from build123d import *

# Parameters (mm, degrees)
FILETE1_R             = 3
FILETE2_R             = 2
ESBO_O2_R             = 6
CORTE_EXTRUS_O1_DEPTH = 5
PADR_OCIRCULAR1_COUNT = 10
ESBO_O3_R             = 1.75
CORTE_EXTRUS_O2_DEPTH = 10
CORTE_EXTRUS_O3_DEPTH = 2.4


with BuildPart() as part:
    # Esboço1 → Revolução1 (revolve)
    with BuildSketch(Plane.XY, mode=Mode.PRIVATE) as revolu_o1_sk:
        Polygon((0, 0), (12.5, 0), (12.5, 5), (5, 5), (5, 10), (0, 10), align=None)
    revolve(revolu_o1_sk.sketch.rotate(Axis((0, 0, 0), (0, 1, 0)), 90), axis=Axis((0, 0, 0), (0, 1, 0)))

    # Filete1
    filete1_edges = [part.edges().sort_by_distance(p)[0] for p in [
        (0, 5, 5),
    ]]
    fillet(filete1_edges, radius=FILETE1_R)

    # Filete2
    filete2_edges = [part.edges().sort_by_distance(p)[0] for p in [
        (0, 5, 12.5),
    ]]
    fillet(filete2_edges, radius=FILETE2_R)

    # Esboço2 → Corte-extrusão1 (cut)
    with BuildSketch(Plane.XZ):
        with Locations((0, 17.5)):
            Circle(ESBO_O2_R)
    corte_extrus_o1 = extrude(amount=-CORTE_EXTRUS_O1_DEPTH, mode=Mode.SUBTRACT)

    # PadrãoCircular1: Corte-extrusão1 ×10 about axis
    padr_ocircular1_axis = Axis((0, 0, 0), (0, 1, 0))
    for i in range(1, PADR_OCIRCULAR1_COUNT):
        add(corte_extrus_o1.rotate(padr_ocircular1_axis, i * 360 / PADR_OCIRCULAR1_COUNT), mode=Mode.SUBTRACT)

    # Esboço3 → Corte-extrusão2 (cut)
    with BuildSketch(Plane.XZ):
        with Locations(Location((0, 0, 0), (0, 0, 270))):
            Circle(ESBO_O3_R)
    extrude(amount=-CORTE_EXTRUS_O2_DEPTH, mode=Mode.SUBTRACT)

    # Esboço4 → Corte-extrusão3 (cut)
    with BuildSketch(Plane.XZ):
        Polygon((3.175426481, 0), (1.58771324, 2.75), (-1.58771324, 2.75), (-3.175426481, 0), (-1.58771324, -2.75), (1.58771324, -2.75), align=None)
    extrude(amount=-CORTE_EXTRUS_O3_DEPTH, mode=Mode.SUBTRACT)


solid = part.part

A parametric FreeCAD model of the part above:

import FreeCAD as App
import Part
import Sketcher
Q = App.Units.Quantity


def edges_at(feature, points):
    """Names of the edges that pass closest to the given points."""
    edges = feature.Shape.Edges
    near = lambda p: min(range(len(edges)), key=lambda i: edges[i].distToShape(Part.Vertex(*p))[0])
    return sorted({f"Edge{near(p) + 1}" for p in points})


def add_polygon(sketch, points):
    """Adds a closed chain of lines whose ends are joined by coincident constraints."""
    first, n = sketch.GeometryCount, len(points)
    for a, b in zip(points, points[1:] + points[:1]):
        sketch.addGeometry(Part.LineSegment(App.Vector(*a, 0), App.Vector(*b, 0)), False)
    for i in range(n):
        sketch.addConstraint(Sketcher.Constraint("Coincident", first + i, 2, first + (i + 1) % n, 1))

doc = App.newDocument("Part")
params = doc.addObject("Spreadsheet::Sheet", "Params")
for row, (alias, value) in enumerate([
    ("sketch1_width", "5 mm"),
    ("sketch1_width2", "12.5 mm"),
    ("revolution_angle", "360 deg"),
    ("fillet_radius", "3 mm"),
    ("fillet2_radius", "2 mm"),
    ("sketch2_diameter", "12 mm"),
    ("pocket1_length", "5 mm"),
    ("sketch3_diameter", "3.5 mm"),
    ("pocket2_length", "10 mm"),
    ("pocket3_length", "2.4 mm"),
], start=1):
    params.set(f"A{row}", alias)
    params.set(f"B{row}", "=" + value)
    params.setAlias(f"B{row}", alias)

body = doc.addObject("PartDesign::Body", "Body")

# Sketch on XY plane
sketch1 = doc.addObject("Sketcher::SketchObject", "Sketch")
body.addObject(sketch1)
sketch1.AttachmentSupport = (doc.XY_Plane, [""])
sketch1.MapMode = "FlatFace"
add_polygon(sketch1, [(0, 0), (12, 0), (12, 5), (5, 5), (5, 10), (0, 10)])  # lines 0-5
sketch1.addConstraint([
    Sketcher.Constraint("Horizontal", 0),
    Sketcher.Constraint("Vertical", 1),
    Sketcher.Constraint("Horizontal", 2),
    Sketcher.Constraint("Vertical", 3),
    Sketcher.Constraint("Horizontal", 4),
    Sketcher.Constraint("Vertical", 5),
    Sketcher.Constraint("Coincident", 5, 2, -1, 1),
    Sketcher.Constraint("Equal", 4, 1),
    Sketcher.Constraint("Equal", 1, 3),
    Sketcher.Constraint("DistanceX", 4, 2, 4, 1, 5.0),
    Sketcher.Constraint("DistanceX", 0, 1, 0, 2, 12.5),
])
sketch1.setExpression("Constraints[15]", "Params.sketch1_width")
sketch1.setExpression("Constraints[16]", "Params.sketch1_width2")
revolution = doc.addObject("PartDesign::Revolution", "Revolution")
body.addObject(revolution)
revolution.Profile = sketch1
revolution.ReferenceAxis = (sketch1, ["V_Axis"])
revolution.setExpression("Angle", "Params.revolution_angle")
doc.recompute()

fillet = doc.addObject("PartDesign::Fillet", "Fillet")
body.addObject(fillet)
fillet.Base = (revolution, edges_at(revolution, [(0, 5, 5)]))
fillet.setExpression("Radius", "Params.fillet_radius")
doc.recompute()

fillet2 = doc.addObject("PartDesign::Fillet", "Fillet001")
body.addObject(fillet2)
fillet2.Base = (fillet, edges_at(fillet, [(0, 5, 12.5)]))
fillet2.setExpression("Radius", "Params.fillet2_radius")

# Sketch on XZ plane
sketch2 = doc.addObject("Sketcher::SketchObject", "Sketch001")
body.addObject(sketch2)
sketch2.AttachmentSupport = (doc.XZ_Plane, [""])
sketch2.MapMode = "FlatFace"
sketch2.addGeometry(Part.Circle(App.Vector(0, 18, 0), App.Vector(0, 0, 1), 6), False)
sketch2.addConstraint([
    Sketcher.Constraint("PointOnObject", 0, 3, -2),
    Sketcher.Constraint("Diameter", 0, 12.0),
    Sketcher.Constraint("DistanceY", -1, 1, 0, 3, 17.5),
])
sketch2.setExpression("Constraints[1]", "Params.sketch2_diameter")
pocket1 = doc.addObject("PartDesign::Pocket", "Pocket")
body.addObject(pocket1)
pocket1.Profile = sketch2
pocket1.setExpression("Length", "Params.pocket1_length")
doc.recompute()

polarpattern = doc.addObject("PartDesign::PolarPattern", "PolarPattern")
body.addObject(polarpattern)
polarpattern.Originals = [pocket1]
polarpattern.Axis = (doc.Y_Axis, [""])
polarpattern.Angle = 360
polarpattern.Occurrences = 10
body.Tip = polarpattern

# Sketch on XZ plane
sketch3 = doc.addObject("Sketcher::SketchObject", "Sketch002")
body.addObject(sketch3)
sketch3.AttachmentSupport = (doc.XZ_Plane, [""])
sketch3.MapMode = "FlatFace"
sketch3.addGeometry(Part.Circle(App.Vector(0, 0, 0), App.Vector(0, 0, 1), 1.8), False)
sketch3.addConstraint([
    Sketcher.Constraint("Coincident", 0, 3, -1, 1),
    Sketcher.Constraint("Diameter", 0, 3.5),
])
sketch3.setExpression("Constraints[1]", "Params.sketch3_diameter")
pocket2 = doc.addObject("PartDesign::Pocket", "Pocket001")
body.addObject(pocket2)
pocket2.Profile = sketch3
pocket2.setExpression("Length", "Params.pocket2_length")

# Sketch on XZ plane
sketch4 = doc.addObject("Sketcher::SketchObject", "Sketch003")
body.addObject(sketch4)
sketch4.AttachmentSupport = (doc.XZ_Plane, [""])
sketch4.MapMode = "FlatFace"
add_polygon(sketch4, [(3.2, 0), (1.6, 2.8), (-1.6, 2.8), (-3.2, 0), (-1.6, -2.8), (1.6, -2.8)])  # lines 0-5
sketch4.addConstraint([
    Sketcher.Constraint("Horizontal", 1),
    Sketcher.Constraint("Horizontal", 4),
    Sketcher.Constraint("Symmetric", 0, 2, 3, 2, -1, 1),
    Sketcher.Constraint("Symmetric", 2, 2, 5, 2, -1, 1),
    Sketcher.Constraint("PointOnObject", 2, 2, -1),
    Sketcher.Constraint("Parallel", 2, 5),
    Sketcher.Constraint("Vertical", 1, 2, 3, 2),
    Sketcher.Constraint("Angle", 0, Q("120 deg")),
    Sketcher.Constraint("DistanceY", 3, 2, 1, 2, 5.5),
    Sketcher.Constraint("DistanceX", 1, 2, 1, 1, 3.175426),
])
pocket3 = doc.addObject("PartDesign::Pocket", "Pocket002")
body.addObject(pocket3)
pocket3.Profile = sketch4
pocket3.setExpression("Length", "Params.pocket3_length")

doc.recompute()
